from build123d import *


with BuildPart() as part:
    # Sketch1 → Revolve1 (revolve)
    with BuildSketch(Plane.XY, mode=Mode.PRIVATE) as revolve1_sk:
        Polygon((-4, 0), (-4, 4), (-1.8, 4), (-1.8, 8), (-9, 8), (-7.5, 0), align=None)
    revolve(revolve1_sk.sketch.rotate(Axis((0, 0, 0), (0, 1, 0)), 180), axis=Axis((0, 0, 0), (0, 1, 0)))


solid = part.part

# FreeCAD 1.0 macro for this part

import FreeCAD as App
import Part
import Sketcher
Q = App.Units.Quantity


def add_polygon(sketch, points):
    """Adds a closed chain of lines whose ends are joined by coincident constraints."""
    first, n = sketch.GeometryCount, len(points)
    for a, b in zip(points, points[1:] + points[:1]):
        sketch.addGeometry(Part.LineSegment(App.Vector(*a, 0), App.Vector(*b, 0)), False)
    for i in range(n):
        sketch.addConstraint(Sketcher.Constraint("Coincident", first + i, 2, first + (i + 1) % n, 1))

doc = App.newDocument("Part")
body = doc.addObject("PartDesign::Body", "Body")

# Sketch on XY plane
sketch1 = body.newObject("Sketcher::SketchObject", "Sketch")
sketch1.AttachmentSupport = (doc.getObject("XY_Plane"), [""])
sketch1.MapMode = "FlatFace"
add_polygon(sketch1, [(-4, 0), (-4, 4), (-1.8, 4), (-1.8, 8), (-9, 8), (-7.5, 0)])  # lines 0-5
sketch1.addConstraint(Sketcher.Constraint("Vertical", 0))
sketch1.addConstraint(Sketcher.Constraint("Horizontal", 1))
sketch1.addConstraint(Sketcher.Constraint("Vertical", 2))
sketch1.addConstraint(Sketcher.Constraint("Horizontal", 3))
sketch1.addConstraint(Sketcher.Constraint("Horizontal", 5))
sketch1.addConstraint(Sketcher.Constraint("PointOnObject", 4, 2, -1))
sketch1.addConstraint(Sketcher.Constraint("Equal", 0, 2))
sketch1.addConstraint(Sketcher.Constraint("DistanceY", 0, 1, 0, 2, Q("4 mm")))
sketch1.addConstraint(Sketcher.Constraint("DistanceX", 1, 1, 1, 2, Q("2.2 mm")))
sketch1.addConstraint(Sketcher.Constraint("DistanceX", 3, 2, 3, 1, Q("7.2 mm")))
sketch1.addConstraint(Sketcher.Constraint("DistanceX", 5, 1, 5, 2, Q("3.5 mm")))
sketch1.addConstraint(Sketcher.Constraint("DistanceX", 0, 2, -1, 1, Q("4 mm")))
revolution = body.newObject("PartDesign::Revolution", "Revolution")
revolution.Profile = sketch1
revolution.ReferenceAxis = (sketch1, ["V_Axis"])
revolution.Angle = 360

doc.recompute()
